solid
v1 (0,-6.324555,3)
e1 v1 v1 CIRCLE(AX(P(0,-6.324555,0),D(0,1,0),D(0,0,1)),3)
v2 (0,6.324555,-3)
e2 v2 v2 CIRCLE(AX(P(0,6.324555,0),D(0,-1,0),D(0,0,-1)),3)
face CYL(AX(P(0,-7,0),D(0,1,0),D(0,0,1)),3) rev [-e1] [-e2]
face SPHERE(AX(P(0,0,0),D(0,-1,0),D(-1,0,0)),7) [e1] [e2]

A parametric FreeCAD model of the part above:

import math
import FreeCAD as App
import Part
import Sketcher

V = App.Vector

doc = App.newDocument("Part")
body = doc.addObject("PartDesign::Body", "Body")

# Sketch on XY plane
sketch1 = doc.addObject("Sketcher::SketchObject", "Sketch")
body.addObject(sketch1)
sketch1.AttachmentSupport = (doc.XY_Plane, [""])
sketch1.MapMode = "FlatFace"
sketch1.addGeometry([
    Part.ArcOfCircle(Part.Circle(V(0, 0, 0), V(0, 0, 1), 7), math.radians(-90), math.radians(90)),
    Part.LineSegment(V(0, 7, 0), V(0, -7, 0)),
], False)
sketch1.addConstraint([
    Sketcher.Constraint("Coincident", 0, 1, 1, 2),
    Sketcher.Constraint("Coincident", 1, 1, 0, 2),
    Sketcher.Constraint("Vertical", 1),
    Sketcher.Constraint("Coincident", 0, 3, -1, 1),
    Sketcher.Constraint("PointOnObject", 0, 1, -2),
    Sketcher.Constraint("Radius", 0, 7.0),
])
revolution = doc.addObject("PartDesign::Revolution", "Revolution")
body.addObject(revolution)
revolution.Profile = sketch1
revolution.ReferenceAxis = (sketch1, ["V_Axis"])
revolution.Angle = 360

# Sketch on XZ plane
sketch2 = doc.addObject("Sketcher::SketchObject", "Sketch001")
body.addObject(sketch2)
sketch2.AttachmentSupport = (doc.XZ_Plane, [""])
sketch2.MapMode = "FlatFace"
sketch2.addGeometry(Part.Circle(V(0, 0, 0), V(0, 0, 1), 3), False)
sketch2.addConstraint([
    Sketcher.Constraint("Coincident", 0, 3, -1, 1),
    Sketcher.Constraint("Diameter", 0, 6.0),
])
pocket1 = doc.addObject("PartDesign::Pocket", "Pocket")
body.addObject(pocket1)
pocket1.Profile = sketch2
pocket1.Type = "ThroughAll"
pocket1.Midplane = True

doc.recompute()
